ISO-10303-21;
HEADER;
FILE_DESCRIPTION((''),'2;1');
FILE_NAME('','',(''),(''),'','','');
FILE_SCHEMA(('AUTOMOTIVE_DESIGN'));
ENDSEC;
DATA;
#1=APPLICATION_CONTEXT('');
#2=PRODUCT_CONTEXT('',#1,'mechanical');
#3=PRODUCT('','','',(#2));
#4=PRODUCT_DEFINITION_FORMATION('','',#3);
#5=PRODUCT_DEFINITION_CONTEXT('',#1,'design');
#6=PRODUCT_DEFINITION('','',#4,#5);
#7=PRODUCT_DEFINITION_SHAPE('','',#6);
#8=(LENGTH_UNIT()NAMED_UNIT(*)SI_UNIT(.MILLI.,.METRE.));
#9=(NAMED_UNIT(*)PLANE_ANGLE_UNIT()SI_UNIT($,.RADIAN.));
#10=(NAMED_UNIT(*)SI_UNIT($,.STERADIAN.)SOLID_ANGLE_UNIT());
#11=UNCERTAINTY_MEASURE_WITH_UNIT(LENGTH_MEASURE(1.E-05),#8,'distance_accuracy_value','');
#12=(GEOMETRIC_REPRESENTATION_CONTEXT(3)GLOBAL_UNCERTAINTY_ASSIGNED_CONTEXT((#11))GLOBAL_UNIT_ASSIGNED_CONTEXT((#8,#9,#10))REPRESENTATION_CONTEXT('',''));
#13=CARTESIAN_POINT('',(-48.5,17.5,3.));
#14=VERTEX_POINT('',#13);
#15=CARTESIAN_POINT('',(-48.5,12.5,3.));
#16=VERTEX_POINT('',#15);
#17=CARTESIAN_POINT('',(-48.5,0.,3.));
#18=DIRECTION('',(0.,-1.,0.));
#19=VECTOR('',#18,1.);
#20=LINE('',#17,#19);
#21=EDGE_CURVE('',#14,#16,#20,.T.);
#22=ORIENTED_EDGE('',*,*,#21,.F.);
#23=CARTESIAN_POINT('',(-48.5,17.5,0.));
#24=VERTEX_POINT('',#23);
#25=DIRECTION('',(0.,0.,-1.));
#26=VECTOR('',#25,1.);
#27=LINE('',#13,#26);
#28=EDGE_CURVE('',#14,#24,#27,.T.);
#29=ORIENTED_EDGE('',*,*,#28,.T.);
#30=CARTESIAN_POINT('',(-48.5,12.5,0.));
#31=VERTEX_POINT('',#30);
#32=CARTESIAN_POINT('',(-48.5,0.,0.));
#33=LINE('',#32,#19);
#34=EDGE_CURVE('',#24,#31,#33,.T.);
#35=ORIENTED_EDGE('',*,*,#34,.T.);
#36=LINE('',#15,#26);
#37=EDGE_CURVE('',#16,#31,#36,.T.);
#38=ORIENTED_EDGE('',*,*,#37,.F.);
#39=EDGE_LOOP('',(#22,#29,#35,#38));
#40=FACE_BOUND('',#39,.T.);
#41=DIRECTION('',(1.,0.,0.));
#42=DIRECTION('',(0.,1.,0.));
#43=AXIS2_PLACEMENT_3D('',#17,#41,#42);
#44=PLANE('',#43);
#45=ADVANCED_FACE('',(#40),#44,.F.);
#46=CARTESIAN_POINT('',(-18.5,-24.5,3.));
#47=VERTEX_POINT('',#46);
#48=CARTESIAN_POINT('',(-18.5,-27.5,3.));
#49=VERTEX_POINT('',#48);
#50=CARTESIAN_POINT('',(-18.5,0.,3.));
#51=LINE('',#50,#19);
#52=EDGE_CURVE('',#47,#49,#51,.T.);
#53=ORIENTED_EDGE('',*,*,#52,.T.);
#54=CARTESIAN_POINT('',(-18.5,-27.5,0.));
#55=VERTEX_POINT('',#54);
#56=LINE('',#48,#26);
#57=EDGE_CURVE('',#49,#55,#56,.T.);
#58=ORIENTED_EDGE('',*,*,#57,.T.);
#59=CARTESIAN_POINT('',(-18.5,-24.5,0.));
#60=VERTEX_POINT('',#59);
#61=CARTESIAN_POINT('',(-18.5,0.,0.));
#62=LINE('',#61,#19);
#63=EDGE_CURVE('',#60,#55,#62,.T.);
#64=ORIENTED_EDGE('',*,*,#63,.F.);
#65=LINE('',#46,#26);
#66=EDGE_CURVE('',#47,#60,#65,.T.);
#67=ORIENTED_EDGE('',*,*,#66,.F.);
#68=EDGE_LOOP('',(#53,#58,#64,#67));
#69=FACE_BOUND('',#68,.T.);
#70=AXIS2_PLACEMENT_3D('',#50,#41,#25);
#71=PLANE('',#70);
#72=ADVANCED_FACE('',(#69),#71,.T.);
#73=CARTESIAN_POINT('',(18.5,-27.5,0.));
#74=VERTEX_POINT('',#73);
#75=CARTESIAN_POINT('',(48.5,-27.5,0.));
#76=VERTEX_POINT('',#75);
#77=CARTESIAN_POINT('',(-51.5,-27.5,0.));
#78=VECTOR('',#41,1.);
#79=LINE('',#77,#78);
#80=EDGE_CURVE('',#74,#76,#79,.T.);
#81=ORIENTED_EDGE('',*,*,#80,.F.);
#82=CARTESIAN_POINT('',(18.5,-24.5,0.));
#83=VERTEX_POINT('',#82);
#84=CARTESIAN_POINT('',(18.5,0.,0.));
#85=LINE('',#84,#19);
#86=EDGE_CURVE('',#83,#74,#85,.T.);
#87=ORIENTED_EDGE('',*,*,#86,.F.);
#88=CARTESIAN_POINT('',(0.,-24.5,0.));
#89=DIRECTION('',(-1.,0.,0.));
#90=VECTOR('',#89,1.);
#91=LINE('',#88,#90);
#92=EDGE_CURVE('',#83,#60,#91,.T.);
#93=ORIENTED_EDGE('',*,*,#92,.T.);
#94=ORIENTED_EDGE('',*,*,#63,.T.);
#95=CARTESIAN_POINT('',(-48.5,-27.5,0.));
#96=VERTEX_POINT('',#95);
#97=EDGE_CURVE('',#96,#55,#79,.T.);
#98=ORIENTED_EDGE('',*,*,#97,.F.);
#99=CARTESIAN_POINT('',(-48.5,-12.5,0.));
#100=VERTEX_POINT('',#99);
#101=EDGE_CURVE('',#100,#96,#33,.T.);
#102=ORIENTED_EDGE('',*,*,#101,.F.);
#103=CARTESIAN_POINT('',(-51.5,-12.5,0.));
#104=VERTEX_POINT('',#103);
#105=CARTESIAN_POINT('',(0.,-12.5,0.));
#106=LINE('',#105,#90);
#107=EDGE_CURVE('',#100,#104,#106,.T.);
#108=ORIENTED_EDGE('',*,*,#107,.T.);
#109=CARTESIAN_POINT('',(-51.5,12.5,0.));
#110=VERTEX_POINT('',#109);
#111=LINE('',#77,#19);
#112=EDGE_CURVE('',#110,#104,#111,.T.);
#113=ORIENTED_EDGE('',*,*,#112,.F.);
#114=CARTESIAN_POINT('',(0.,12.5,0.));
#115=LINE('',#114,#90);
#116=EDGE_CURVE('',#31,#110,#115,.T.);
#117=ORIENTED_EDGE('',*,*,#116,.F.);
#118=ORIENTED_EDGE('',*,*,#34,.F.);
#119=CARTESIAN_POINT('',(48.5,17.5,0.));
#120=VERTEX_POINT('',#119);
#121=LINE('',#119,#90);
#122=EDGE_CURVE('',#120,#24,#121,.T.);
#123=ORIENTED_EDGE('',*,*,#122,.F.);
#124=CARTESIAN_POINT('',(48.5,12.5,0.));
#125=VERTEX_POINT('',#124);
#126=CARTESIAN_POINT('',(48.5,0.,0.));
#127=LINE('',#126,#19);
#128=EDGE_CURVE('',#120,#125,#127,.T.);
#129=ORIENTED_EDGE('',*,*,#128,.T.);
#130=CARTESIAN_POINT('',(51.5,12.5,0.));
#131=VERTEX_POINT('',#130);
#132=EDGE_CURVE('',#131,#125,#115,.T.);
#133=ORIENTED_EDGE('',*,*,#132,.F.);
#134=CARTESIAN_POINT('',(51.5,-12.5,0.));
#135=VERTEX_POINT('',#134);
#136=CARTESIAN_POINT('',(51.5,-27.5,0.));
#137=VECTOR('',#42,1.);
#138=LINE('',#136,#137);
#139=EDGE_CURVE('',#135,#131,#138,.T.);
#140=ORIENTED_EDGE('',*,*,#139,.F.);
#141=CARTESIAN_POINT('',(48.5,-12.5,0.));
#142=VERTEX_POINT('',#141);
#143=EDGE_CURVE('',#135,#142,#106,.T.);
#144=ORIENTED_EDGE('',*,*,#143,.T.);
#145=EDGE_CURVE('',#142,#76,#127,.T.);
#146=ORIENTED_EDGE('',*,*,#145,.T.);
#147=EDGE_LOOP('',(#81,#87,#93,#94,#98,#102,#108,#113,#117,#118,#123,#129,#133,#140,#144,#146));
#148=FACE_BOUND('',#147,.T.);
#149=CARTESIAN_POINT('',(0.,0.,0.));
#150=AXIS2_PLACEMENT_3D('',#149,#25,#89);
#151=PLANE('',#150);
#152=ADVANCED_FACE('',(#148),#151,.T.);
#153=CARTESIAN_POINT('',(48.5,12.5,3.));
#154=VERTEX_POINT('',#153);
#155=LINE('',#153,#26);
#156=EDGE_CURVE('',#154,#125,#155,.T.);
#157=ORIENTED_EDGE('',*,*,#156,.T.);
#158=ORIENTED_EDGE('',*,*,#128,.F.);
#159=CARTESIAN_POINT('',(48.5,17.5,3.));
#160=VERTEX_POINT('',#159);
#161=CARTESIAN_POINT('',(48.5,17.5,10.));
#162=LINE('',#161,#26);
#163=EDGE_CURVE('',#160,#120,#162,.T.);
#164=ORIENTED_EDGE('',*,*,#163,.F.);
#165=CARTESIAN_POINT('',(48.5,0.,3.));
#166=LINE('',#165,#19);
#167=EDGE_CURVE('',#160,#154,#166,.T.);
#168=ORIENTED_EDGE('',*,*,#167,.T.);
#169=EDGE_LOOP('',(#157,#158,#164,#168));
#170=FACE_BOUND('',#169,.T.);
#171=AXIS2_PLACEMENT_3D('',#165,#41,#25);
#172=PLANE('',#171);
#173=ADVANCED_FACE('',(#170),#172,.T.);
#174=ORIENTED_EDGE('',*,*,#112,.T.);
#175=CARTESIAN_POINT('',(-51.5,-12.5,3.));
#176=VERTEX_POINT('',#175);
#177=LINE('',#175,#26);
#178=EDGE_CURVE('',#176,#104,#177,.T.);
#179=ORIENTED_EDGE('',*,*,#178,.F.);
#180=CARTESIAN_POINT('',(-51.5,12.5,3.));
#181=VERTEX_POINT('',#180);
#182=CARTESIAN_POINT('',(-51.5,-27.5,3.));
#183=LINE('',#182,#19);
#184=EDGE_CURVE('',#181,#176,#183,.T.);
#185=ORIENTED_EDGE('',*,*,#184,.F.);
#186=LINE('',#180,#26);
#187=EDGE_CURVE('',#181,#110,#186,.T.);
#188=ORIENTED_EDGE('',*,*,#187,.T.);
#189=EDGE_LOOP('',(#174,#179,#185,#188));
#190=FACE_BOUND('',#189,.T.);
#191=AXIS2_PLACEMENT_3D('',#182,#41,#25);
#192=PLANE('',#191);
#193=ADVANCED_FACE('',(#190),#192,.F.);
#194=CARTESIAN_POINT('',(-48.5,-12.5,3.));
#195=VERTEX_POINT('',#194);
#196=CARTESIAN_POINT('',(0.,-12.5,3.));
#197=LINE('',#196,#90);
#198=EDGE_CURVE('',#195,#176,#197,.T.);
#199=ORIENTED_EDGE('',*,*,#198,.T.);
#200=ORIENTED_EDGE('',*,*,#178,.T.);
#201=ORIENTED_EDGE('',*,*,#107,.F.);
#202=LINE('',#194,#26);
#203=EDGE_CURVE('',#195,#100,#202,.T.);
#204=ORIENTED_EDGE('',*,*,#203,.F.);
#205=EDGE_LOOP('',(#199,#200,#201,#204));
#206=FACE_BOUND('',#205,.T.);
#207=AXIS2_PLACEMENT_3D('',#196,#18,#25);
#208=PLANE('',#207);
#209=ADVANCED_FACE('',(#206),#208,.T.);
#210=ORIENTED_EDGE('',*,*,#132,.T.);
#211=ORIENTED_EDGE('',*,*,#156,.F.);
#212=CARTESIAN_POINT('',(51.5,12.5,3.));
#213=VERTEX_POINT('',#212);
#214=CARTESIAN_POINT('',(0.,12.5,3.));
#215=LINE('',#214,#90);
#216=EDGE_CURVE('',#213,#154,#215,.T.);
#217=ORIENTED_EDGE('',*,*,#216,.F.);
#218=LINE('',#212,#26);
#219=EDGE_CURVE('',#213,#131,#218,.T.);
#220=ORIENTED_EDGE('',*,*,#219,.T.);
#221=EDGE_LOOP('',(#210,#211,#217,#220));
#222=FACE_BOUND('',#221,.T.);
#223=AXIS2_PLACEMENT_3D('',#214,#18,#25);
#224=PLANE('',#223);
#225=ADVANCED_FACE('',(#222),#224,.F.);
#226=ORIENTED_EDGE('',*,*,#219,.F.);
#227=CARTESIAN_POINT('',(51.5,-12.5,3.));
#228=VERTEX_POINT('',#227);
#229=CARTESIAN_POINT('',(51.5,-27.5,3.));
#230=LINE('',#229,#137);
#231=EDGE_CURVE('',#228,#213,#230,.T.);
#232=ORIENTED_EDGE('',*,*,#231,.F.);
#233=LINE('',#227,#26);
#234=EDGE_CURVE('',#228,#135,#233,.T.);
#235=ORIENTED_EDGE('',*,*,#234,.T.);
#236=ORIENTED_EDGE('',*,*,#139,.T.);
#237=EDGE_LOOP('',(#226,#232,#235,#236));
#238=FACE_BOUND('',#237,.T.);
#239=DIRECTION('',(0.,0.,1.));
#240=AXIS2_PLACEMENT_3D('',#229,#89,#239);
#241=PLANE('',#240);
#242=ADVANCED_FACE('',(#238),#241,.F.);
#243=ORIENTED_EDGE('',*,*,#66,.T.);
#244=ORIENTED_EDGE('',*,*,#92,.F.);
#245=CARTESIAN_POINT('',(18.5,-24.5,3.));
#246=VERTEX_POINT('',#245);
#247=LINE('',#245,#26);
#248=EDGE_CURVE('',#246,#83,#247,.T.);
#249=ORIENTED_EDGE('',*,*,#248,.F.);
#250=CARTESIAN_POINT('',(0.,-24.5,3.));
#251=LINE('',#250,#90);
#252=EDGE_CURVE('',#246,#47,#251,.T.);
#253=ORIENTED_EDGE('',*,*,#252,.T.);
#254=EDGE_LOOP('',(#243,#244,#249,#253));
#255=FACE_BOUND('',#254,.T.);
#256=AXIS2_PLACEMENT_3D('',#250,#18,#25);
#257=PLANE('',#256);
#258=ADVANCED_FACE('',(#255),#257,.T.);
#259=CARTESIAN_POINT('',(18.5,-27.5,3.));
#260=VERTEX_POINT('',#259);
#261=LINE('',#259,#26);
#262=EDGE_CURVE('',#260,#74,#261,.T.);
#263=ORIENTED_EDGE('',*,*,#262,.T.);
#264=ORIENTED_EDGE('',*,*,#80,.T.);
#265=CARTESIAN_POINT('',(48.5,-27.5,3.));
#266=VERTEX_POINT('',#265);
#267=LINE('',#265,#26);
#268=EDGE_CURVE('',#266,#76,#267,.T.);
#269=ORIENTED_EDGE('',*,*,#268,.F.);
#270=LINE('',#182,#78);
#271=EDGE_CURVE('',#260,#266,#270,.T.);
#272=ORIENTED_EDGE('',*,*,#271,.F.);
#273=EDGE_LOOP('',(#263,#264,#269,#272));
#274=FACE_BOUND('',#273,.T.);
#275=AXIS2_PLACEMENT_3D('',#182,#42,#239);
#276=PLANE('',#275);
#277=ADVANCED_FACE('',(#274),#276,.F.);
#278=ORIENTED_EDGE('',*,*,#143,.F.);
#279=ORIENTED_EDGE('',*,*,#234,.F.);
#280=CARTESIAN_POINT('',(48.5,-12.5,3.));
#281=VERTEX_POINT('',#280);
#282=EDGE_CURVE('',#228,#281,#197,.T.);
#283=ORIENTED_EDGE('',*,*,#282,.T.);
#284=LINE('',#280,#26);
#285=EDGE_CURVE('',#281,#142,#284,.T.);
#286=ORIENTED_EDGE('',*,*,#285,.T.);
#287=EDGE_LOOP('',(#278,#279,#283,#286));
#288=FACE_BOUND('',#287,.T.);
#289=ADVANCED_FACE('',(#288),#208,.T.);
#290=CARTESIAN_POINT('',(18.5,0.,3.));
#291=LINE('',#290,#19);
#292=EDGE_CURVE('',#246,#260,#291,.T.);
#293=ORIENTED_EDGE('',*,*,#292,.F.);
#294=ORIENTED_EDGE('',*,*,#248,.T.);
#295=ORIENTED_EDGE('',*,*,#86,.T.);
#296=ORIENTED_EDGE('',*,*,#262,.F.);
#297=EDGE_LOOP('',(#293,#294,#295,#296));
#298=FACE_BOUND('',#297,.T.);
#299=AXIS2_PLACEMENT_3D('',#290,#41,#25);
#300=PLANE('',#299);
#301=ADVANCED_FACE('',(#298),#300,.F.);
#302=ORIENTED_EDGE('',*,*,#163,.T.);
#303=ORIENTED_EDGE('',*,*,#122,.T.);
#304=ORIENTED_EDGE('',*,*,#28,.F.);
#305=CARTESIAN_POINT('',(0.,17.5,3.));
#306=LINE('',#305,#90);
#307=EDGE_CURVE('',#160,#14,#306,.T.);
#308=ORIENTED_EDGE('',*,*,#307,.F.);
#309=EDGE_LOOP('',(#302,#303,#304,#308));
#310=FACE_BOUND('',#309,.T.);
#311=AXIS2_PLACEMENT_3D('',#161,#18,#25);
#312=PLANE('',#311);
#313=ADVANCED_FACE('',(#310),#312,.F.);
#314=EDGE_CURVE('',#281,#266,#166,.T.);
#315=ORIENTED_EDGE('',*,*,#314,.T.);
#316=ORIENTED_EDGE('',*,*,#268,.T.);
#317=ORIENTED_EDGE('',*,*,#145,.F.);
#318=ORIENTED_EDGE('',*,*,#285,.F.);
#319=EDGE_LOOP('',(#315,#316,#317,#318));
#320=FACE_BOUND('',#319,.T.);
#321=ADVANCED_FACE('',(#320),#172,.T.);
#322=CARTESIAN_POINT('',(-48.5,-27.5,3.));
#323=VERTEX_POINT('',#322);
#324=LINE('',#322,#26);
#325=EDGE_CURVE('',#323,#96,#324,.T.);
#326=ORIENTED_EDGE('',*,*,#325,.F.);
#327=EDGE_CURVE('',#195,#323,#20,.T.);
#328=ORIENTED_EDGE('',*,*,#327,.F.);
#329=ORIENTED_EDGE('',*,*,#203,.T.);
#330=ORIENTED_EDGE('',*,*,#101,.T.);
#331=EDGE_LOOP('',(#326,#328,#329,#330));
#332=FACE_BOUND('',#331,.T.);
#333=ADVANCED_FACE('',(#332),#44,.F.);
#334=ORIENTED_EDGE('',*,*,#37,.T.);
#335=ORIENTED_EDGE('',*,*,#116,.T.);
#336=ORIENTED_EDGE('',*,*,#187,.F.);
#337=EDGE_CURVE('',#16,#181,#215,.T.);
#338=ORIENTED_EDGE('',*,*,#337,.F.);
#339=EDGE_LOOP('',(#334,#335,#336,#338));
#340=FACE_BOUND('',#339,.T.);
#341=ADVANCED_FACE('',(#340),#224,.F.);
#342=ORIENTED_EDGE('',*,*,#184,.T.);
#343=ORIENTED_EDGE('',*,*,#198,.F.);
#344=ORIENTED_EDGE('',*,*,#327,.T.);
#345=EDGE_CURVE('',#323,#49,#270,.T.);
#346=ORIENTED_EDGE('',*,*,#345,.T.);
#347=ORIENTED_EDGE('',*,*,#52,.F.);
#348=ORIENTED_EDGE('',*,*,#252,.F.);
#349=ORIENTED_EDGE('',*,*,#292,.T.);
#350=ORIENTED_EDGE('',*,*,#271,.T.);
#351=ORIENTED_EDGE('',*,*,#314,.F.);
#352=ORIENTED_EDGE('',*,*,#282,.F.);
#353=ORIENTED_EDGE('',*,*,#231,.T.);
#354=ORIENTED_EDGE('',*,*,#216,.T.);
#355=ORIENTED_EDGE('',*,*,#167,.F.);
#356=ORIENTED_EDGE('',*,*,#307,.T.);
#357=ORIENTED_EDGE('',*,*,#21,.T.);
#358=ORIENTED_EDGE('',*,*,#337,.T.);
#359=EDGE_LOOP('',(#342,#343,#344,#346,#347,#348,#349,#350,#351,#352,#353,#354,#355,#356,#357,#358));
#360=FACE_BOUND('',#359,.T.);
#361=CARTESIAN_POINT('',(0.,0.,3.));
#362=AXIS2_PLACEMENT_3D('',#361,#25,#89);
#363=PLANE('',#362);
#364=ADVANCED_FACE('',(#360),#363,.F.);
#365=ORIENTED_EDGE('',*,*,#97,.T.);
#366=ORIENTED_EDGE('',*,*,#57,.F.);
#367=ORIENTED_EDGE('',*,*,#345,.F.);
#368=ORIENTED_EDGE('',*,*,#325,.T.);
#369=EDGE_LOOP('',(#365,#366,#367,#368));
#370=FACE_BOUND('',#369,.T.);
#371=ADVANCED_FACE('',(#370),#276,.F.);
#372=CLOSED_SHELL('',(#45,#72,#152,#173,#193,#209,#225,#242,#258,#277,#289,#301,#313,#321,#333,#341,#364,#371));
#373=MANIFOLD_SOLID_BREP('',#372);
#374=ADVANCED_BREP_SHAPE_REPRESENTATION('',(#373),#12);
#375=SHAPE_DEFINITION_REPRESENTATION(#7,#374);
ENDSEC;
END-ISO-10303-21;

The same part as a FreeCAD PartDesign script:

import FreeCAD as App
import Part
import Sketcher
from FreeCAD import Vector

doc = App.newDocument("Part")
body = doc.addObject("PartDesign::Body", "Body")

sketch1 = body.newObject("Sketcher::SketchObject", "Sketch")
sketch1.AttachmentSupport = (doc.getObject("XY_Plane"), [""])
sketch1.MapMode = "FlatFace"
sketch1.addGeometry([
    Part.LineSegment(Vector(-52, 28, 0), Vector(-52, -28, 0)),
    Part.LineSegment(Vector(-52, -28, 0), Vector(52, -28, 0)),
    Part.LineSegment(Vector(52, -28, 0), Vector(52, 28, 0)),
    Part.LineSegment(Vector(52, 28, 0), Vector(-52, 28, 0)),
], False)
sketch1.addConstraint([
    Sketcher.Constraint("Coincident", 0, 2, 1, 1),
    Sketcher.Constraint("Coincident", 1, 2, 2, 1),
    Sketcher.Constraint("Coincident", 2, 2, 3, 1),
    Sketcher.Constraint("Coincident", 3, 2, 0, 1),
    Sketcher.Constraint("Vertical", 0),
    Sketcher.Constraint("Horizontal", 1),
    Sketcher.Constraint("Vertical", 2),
    Sketcher.Constraint("Horizontal", 3),
    Sketcher.Constraint("Symmetric", 0, 2, 2, 2, -1, 1),
    Sketcher.Constraint("DistanceX", 1, 1, 1, 2, 103.0),
    Sketcher.Constraint("DistanceY", 0, 2, 0, 1, 55.0),
])
pad1 = body.newObject("PartDesign::Pad", "Pad")
pad1.Profile = sketch1
pad1.Length = 3

sketch2 = body.newObject("Sketcher::SketchObject", "Sketch001")
sketch2.AttachmentSupport = (doc.getObject("XY_Plane"), [""])
sketch2.MapMode = "FlatFace"
sketch2.addGeometry([
    Part.LineSegment(Vector(51.5, 27.5, 0), Vector(51.5, 12.5, 0)),
    Part.LineSegment(Vector(51.5, 12.5, 0), Vector(48.5, 12.5, 0)),
    Part.LineSegment(Vector(48.5, 12.5, 0), Vector(48.5, 27.5, 0)),
    Part.LineSegment(Vector(48.5, 27.5, 0), Vector(51.5, 27.5, 0)),
    Part.LineSegment(Vector(51.5, -12.5, 0), Vector(51.5, -27.5, 0)),
    Part.LineSegment(Vector(51.5, -27.5, 0), Vector(48.5, -27.5, 0)),
    Part.LineSegment(Vector(48.5, -27.5, 0), Vector(48.5, -12.5, 0)),
    Part.LineSegment(Vector(48.5, -12.5, 0), Vector(51.5, -12.5, 0)),
    Part.LineSegment(Vector(-48.5, 27.5, 0), Vector(-48.5, 12.5, 0)),
    Part.LineSegment(Vector(-48.5, 12.5, 0), Vector(-51.5, 12.5, 0)),
    Part.LineSegment(Vector(-51.5, 12.5, 0), Vector(-51.5, 27.5, 0)),
    Part.LineSegment(Vector(-51.5, 27.5, 0), Vector(-48.5, 27.5, 0)),
    Part.LineSegment(Vector(-48.5, -12.5, 0), Vector(-48.5, -27.5, 0)),
    Part.LineSegment(Vector(-48.5, -27.5, 0), Vector(-51.5, -27.5, 0)),
    Part.LineSegment(Vector(-51.5, -27.5, 0), Vector(-51.5, -12.5, 0)),
    Part.LineSegment(Vector(-51.5, -12.5, 0), Vector(-48.5, -12.5, 0)),
], False)
sketch2.addConstraint([
    Sketcher.Constraint("Coincident", 0, 2, 1, 1),
    Sketcher.Constraint("Coincident", 1, 2, 2, 1),
    Sketcher.Constraint("Coincident", 2, 2, 3, 1),
    Sketcher.Constraint("Coincident", 3, 2, 0, 1),
    Sketcher.Constraint("Coincident", 4, 2, 5, 1),
    Sketcher.Constraint("Coincident", 5, 2, 6, 1),
    Sketcher.Constraint("Coincident", 6, 2, 7, 1),
    Sketcher.Constraint("Coincident", 7, 2, 4, 1),
    Sketcher.Constraint("Coincident", 8, 2, 9, 1),
    Sketcher.Constraint("Coincident", 9, 2, 10, 1),
    Sketcher.Constraint("Coincident", 10, 2, 11, 1),
    Sketcher.Constraint("Coincident", 11, 2, 8, 1),
    Sketcher.Constraint("Coincident", 12, 2, 13, 1),
    Sketcher.Constraint("Coincident", 13, 2, 14, 1),
    Sketcher.Constraint("Coincident", 14, 2, 15, 1),
    Sketcher.Constraint("Coincident", 15, 2, 12, 1),
    Sketcher.Constraint("Vertical", 0),
    Sketcher.Constraint("Horizontal", 1),
    Sketcher.Constraint("Vertical", 2),
    Sketcher.Constraint("Horizontal", 3),
    Sketcher.Constraint("Vertical", 4),
    Sketcher.Constraint("Horizontal", 5),
    Sketcher.Constraint("Vertical", 6),
    Sketcher.Constraint("Horizontal", 7),
    Sketcher.Constraint("Vertical", 8),
    Sketcher.Constraint("Horizontal", 9),
    Sketcher.Constraint("Vertical", 10),
    Sketcher.Constraint("Horizontal", 11),
    Sketcher.Constraint("Vertical", 12),
    Sketcher.Constraint("Horizontal", 13),
    Sketcher.Constraint("Vertical", 14),
    Sketcher.Constraint("Horizontal", 15),
    Sketcher.Constraint("Symmetric", 6, 2, 8, 2, -1, 1),
    Sketcher.Constraint("Symmetric", 4, 2, 10, 2, -1, 1),
    Sketcher.Constraint("Symmetric", 2, 2, 12, 2, -1, 1),
    Sketcher.Constraint("Symmetric", 0, 2, 14, 2, -1, 1),
    Sketcher.Constraint("Symmetric", 1, 2, 8, 2, -2),
    Sketcher.Constraint("Symmetric", 3, 2, 10, 2, -2),
    Sketcher.Constraint("DistanceX", 1, 2, 1, 1, 3.0),
    Sketcher.Constraint("DistanceY", 0, 2, 0, 1, 15.0),
    Sketcher.Constraint("DistanceY", 4, 2, 0, 2, 40.0),
    Sketcher.Constraint("DistanceX", 8, 2, 1, 2, 97.0),
])
pocket1 = body.newObject("PartDesign::Pocket", "Pocket")
pocket1.Profile = sketch2
pocket1.Type = "ThroughAll"
pocket1.Reversed = True

sketch3 = body.newObject("Sketcher::SketchObject", "Sketch002")
sketch3.AttachmentSupport = (doc.getObject("XY_Plane"), [""])
sketch3.MapMode = "FlatFace"
sketch3.addGeometry([
    Part.LineSegment(Vector(18.5, -24.5, 0), Vector(18.5, -27.5, 0)),
    Part.LineSegment(Vector(18.5, -27.5, 0), Vector(-18.5, -27.5, 0)),
    Part.LineSegment(Vector(-18.5, -27.5, 0), Vector(-18.5, -24.5, 0)),
    Part.LineSegment(Vector(-18.5, -24.5, 0), Vector(18.5, -24.5, 0)),
], False)
sketch3.addConstraint([
    Sketcher.Constraint("Coincident", 0, 2, 1, 1),
    Sketcher.Constraint("Coincident", 1, 2, 2, 1),
    Sketcher.Constraint("Coincident", 2, 2, 3, 1),
    Sketcher.Constraint("Coincident", 3, 2, 0, 1),
    Sketcher.Constraint("Vertical", 0),
    Sketcher.Constraint("Horizontal", 1),
    Sketcher.Constraint("Vertical", 2),
    Sketcher.Constraint("Horizontal", 3),
    Sketcher.Constraint("DistanceX", 1, 2, 1, 1, 37.0),
    Sketcher.Constraint("DistanceY", 0, 2, 0, 1, 3.0),
    Sketcher.Constraint("DistanceX", -1, 1, 0, 2, 18.5),
    Sketcher.Constraint("DistanceY", 0, 2, -1, 1, 27.5),
])
pocket2 = body.newObject("PartDesign::Pocket", "Pocket001")
pocket2.Profile = sketch3
pocket2.Type = "ThroughAll"
pocket2.Reversed = True

sketch4 = body.newObject("Sketcher::SketchObject", "Sketch003")
sketch4.AttachmentSupport = (doc.getObject("XY_Plane"), [""])
sketch4.MapMode = "FlatFace"
sketch4.addGeometry([
    Part.LineSegment(Vector(48, 28, 0), Vector(48, 18, 0)),
    Part.LineSegment(Vector(48, 18, 0), Vector(-48, 18, 0)),
    Part.LineSegment(Vector(-48, 18, 0), Vector(-48, 28, 0)),
    Part.LineSegment(Vector(-48, 28, 0), Vector(48, 28, 0)),
], False)
sketch4.addConstraint([
    Sketcher.Constraint("Coincident", 0, 2, 1, 1),
    Sketcher.Constraint("Coincident", 1, 2, 2, 1),
    Sketcher.Constraint("Coincident", 2, 2, 3, 1),
    Sketcher.Constraint("Coincident", 3, 2, 0, 1),
    Sketcher.Constraint("Vertical", 0),
    Sketcher.Constraint("Horizontal", 1),
    Sketcher.Constraint("Vertical", 2),
    Sketcher.Constraint("Horizontal", 3),
    Sketcher.Constraint("DistanceX", 1, 2, 1, 1, 97.0),
    Sketcher.Constraint("DistanceY", 0, 2, 0, 1, 10.0),
    Sketcher.Constraint("DistanceX", -1, 1, 0, 2, 48.5),
    Sketcher.Constraint("DistanceY", -1, 1, 0, 2, 17.5),
])
pocket3 = body.newObject("PartDesign::Pocket", "Pocket002")
pocket3.Profile = sketch4
pocket3.Length = 10
pocket3.Reversed = True

doc.recompute()
